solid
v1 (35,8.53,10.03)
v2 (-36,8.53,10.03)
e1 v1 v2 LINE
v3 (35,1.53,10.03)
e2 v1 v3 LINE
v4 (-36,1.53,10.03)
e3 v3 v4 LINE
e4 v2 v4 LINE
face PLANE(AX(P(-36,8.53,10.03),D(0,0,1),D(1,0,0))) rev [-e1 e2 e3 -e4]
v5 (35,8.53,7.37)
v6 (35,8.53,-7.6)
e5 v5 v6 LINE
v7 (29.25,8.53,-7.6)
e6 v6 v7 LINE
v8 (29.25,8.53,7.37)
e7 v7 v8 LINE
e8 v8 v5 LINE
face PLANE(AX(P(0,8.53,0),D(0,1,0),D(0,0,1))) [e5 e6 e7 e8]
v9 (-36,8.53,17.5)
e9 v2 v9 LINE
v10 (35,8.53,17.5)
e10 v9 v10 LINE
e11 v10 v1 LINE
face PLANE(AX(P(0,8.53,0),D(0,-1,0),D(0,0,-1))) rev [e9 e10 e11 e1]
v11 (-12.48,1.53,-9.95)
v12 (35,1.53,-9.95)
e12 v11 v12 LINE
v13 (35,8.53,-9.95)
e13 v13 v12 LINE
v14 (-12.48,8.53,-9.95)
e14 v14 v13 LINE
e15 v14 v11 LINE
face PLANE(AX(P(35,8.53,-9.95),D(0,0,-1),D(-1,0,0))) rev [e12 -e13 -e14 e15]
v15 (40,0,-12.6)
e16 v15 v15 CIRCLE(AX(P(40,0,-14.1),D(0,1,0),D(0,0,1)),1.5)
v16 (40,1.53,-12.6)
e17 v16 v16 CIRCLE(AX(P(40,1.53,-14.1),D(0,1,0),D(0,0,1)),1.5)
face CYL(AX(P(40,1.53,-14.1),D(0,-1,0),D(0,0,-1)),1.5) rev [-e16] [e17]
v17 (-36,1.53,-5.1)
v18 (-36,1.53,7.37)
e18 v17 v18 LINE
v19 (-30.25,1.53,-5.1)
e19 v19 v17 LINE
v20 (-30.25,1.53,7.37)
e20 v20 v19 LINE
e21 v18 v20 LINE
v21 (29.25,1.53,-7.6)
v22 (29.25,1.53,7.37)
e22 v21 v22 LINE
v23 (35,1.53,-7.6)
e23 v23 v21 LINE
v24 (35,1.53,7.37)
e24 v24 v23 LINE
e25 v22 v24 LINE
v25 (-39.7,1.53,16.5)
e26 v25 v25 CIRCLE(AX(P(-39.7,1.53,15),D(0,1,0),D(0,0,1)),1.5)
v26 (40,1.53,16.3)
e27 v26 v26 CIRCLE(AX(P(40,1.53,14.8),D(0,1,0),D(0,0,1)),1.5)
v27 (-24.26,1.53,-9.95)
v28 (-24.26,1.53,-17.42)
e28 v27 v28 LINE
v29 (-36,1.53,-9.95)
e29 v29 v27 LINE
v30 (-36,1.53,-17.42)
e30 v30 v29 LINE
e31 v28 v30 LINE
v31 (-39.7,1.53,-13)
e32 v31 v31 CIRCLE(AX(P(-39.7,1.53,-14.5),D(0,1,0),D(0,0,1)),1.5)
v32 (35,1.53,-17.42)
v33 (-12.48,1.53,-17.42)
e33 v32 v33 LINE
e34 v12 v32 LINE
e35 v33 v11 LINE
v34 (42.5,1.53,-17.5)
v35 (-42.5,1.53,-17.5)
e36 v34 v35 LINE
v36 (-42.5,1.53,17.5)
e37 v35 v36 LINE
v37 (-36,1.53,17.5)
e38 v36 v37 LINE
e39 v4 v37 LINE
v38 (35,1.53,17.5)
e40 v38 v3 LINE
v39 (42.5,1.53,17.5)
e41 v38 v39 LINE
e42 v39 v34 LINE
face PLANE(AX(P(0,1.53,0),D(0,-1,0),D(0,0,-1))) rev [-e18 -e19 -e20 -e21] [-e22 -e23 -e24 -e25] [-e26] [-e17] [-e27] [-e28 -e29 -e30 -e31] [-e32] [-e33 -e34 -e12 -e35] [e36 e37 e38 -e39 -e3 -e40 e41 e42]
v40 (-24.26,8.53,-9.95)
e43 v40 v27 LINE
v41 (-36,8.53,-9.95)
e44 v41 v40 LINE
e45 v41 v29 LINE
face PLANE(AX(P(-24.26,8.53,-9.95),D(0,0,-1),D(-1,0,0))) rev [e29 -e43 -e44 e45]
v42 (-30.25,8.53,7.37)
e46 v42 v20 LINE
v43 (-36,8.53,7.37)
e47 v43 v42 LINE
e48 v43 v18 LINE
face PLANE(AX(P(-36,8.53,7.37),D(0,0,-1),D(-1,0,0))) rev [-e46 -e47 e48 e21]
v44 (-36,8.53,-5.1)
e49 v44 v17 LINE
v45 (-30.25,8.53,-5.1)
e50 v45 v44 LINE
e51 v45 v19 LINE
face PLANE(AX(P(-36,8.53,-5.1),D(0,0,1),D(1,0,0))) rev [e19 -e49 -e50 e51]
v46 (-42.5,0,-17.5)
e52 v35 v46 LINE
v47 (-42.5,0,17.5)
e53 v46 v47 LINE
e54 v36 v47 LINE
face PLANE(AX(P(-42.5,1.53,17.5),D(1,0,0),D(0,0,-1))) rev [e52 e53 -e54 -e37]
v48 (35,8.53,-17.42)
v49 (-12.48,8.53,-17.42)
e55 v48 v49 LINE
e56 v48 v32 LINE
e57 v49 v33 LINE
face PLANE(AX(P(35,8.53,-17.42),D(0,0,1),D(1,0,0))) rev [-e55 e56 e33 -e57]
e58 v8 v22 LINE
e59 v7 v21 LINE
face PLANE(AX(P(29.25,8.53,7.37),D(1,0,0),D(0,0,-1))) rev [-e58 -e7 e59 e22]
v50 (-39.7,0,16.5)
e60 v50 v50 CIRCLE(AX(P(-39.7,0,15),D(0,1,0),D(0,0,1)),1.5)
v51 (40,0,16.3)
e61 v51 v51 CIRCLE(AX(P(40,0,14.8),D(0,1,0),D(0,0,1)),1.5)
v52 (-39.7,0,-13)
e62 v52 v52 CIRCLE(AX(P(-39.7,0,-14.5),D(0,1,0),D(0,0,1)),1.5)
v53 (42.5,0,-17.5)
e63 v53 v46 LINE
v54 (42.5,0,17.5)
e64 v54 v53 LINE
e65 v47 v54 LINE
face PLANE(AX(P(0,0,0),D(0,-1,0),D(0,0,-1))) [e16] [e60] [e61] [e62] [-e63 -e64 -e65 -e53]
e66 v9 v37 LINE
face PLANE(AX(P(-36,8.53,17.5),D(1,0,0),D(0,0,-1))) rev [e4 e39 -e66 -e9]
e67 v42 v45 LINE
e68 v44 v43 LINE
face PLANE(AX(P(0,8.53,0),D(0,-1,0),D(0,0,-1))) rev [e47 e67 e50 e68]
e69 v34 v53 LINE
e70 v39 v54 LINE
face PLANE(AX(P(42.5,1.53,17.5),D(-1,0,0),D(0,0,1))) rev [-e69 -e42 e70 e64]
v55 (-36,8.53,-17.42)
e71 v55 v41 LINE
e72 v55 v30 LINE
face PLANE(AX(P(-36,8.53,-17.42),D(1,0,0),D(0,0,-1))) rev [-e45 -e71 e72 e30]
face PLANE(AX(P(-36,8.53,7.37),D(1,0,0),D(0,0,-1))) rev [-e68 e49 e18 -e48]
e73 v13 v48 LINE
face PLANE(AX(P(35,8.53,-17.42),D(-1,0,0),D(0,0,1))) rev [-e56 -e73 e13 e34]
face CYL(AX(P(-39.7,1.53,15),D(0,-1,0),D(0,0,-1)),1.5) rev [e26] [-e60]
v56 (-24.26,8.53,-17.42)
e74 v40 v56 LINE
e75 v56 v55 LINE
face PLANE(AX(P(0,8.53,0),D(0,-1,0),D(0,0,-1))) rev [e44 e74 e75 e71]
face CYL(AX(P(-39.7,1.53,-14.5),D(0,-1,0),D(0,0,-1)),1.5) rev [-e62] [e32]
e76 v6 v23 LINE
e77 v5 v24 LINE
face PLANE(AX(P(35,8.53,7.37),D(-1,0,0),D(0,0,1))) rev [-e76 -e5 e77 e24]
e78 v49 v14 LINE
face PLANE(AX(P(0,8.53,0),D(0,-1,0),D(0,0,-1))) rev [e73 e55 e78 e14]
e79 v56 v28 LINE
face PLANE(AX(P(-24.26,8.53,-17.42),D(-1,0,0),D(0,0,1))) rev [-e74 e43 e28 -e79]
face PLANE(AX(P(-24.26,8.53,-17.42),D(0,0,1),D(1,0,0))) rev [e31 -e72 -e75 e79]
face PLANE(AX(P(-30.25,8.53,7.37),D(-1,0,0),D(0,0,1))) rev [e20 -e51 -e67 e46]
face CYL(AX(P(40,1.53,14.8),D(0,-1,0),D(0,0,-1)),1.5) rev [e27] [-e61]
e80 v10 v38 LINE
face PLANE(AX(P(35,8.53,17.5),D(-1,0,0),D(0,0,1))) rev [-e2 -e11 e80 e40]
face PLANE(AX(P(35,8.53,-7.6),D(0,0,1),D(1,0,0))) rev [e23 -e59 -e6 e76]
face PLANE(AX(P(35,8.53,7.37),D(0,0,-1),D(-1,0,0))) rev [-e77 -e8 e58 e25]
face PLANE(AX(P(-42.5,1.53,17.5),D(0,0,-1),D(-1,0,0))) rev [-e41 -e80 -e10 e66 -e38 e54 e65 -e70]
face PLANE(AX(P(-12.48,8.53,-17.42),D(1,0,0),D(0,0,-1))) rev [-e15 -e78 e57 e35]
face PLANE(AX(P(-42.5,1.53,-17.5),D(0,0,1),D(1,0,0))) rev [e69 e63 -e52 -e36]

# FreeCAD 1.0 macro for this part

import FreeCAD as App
import Part
import Sketcher
Q = App.Units.Quantity


def add_polygon(sketch, points):
    """Adds a closed chain of lines whose ends are joined by coincident constraints."""
    first, n = sketch.GeometryCount, len(points)
    for a, b in zip(points, points[1:] + points[:1]):
        sketch.addGeometry(Part.LineSegment(App.Vector(*a, 0), App.Vector(*b, 0)), False)
    for i in range(n):
        sketch.addConstraint(Sketcher.Constraint("Coincident", first + i, 2, first + (i + 1) % n, 1))

doc = App.newDocument("Part")
body = doc.addObject("PartDesign::Body", "Body")

# Sketch on XZ plane
sketch1 = body.newObject("Sketcher::SketchObject", "Sketch")
sketch1.AttachmentSupport = (doc.getObject("XZ_Plane"), [""])
sketch1.MapMode = "FlatFace"
add_polygon(sketch1, [(-42.5, -17.5), (-42.5, 17.5), (42.5, 17.5), (42.5, -17.5)])  # lines 0-3
sketch1.addGeometry(Part.Circle(App.Vector(-39.7, 15, 0), App.Vector(0, 0, 1), 1.5), False)  # 4
sketch1.addGeometry(Part.Circle(App.Vector(40, 14.8, 0), App.Vector(0, 0, 1), 1.5), False)  # 5
sketch1.addGeometry(Part.Circle(App.Vector(-39.7, -14.5, 0), App.Vector(0, 0, 1), 1.5), False)  # 6
sketch1.addGeometry(Part.Circle(App.Vector(40, -14.1, 0), App.Vector(0, 0, 1), 1.5), False)  # 7
sketch1.addConstraint(Sketcher.Constraint("Vertical", 0))
sketch1.addConstraint(Sketcher.Constraint("Horizontal", 1))
sketch1.addConstraint(Sketcher.Constraint("Vertical", 2))
sketch1.addConstraint(Sketcher.Constraint("Horizontal", 3))
sketch1.addConstraint(Sketcher.Constraint("Equal", 4, 5))
sketch1.addConstraint(Sketcher.Constraint("Equal", 5, 6))
sketch1.addConstraint(Sketcher.Constraint("Equal", 6, 7))
sketch1.addConstraint(Sketcher.Constraint("Symmetric", 0, 2, 2, 2, -1, 1))
sketch1.addConstraint(Sketcher.Constraint("Vertical", 4, 3, 6, 3))
sketch1.addConstraint(Sketcher.Constraint("Vertical", 5, 3, 7, 3))
sketch1.addConstraint(Sketcher.Constraint("Diameter", 4, Q("3 mm")))
sketch1.addConstraint(Sketcher.Constraint("DistanceX", 1, 1, 1, 2, Q("85 mm")))
sketch1.addConstraint(Sketcher.Constraint("DistanceY", 0, 1, 0, 2, Q("35 mm")))
sketch1.addConstraint(Sketcher.Constraint("DistanceY", -1, 1, 4, 3, Q("15 mm")))
sketch1.addConstraint(Sketcher.Constraint("DistanceX", -1, 1, 5, 3, Q("40 mm")))
sketch1.addConstraint(Sketcher.Constraint("DistanceY", 6, 3, 0, 2, Q("32 mm")))
sketch1.addConstraint(Sketcher.Constraint("DistanceX", 4, 3, -1, 1, Q("39.7 mm")))
sketch1.addConstraint(Sketcher.Constraint("DistanceY", -1, 1, 5, 3, Q("14.8 mm")))
sketch1.addConstraint(Sketcher.Constraint("DistanceY", 7, 3, -1, 1, Q("14.1 mm")))
pad1 = body.newObject("PartDesign::Pad", "Pad")
pad1.Profile = sketch1
pad1.Length = 1.53
pad1.Reversed = True

# Sketch on XZ plane
sketch2 = body.newObject("Sketcher::SketchObject", "Sketch001")
sketch2.AttachmentSupport = (doc.getObject("XZ_Plane"), [""])
sketch2.MapMode = "FlatFace"
sketch2.AttachmentOffset = App.Placement(App.Vector(0, 0, -1.53), App.Rotation())
add_polygon(sketch2, [(-36, 10), (-36, 18), (35, 18), (35, 10)])  # lines 0-3
add_polygon(sketch2, [(29, -8), (29, 7), (35, 7), (35, -8)])  # lines 4-7
add_polygon(sketch2, [(-36, -17), (-36, -10), (-24, -10), (-24, -17)])  # lines 8-11
add_polygon(sketch2, [(-12, -17), (-12, -10), (35, -10), (35, -17)])  # lines 12-15
add_polygon(sketch2, [(-36, -5), (-36, 7), (-30, 7), (-30, -5)])  # lines 16-19
sketch2.addConstraint(Sketcher.Constraint("Vertical", 0))
sketch2.addConstraint(Sketcher.Constraint("Horizontal", 1))
sketch2.addConstraint(Sketcher.Constraint("Vertical", 2))
sketch2.addConstraint(Sketcher.Constraint("Horizontal", 3))
sketch2.addConstraint(Sketcher.Constraint("Vertical", 4))
sketch2.addConstraint(Sketcher.Constraint("Horizontal", 5))
sketch2.addConstraint(Sketcher.Constraint("Vertical", 6))
sketch2.addConstraint(Sketcher.Constraint("Horizontal", 7))
sketch2.addConstraint(Sketcher.Constraint("Vertical", 8))
sketch2.addConstraint(Sketcher.Constraint("Horizontal", 9))
sketch2.addConstraint(Sketcher.Constraint("Vertical", 10))
sketch2.addConstraint(Sketcher.Constraint("Horizontal", 11))
sketch2.addConstraint(Sketcher.Constraint("Vertical", 12))
sketch2.addConstraint(Sketcher.Constraint("Horizontal", 13))
sketch2.addConstraint(Sketcher.Constraint("Vertical", 14))
sketch2.addConstraint(Sketcher.Constraint("Horizontal", 15))
sketch2.addConstraint(Sketcher.Constraint("Vertical", 16))
sketch2.addConstraint(Sketcher.Constraint("Horizontal", 17))
sketch2.addConstraint(Sketcher.Constraint("Vertical", 18))
sketch2.addConstraint(Sketcher.Constraint("Horizontal", 19))
sketch2.addConstraint(Sketcher.Constraint("Horizontal", 9, 2, 12, 2))
sketch2.addConstraint(Sketcher.Constraint("Horizontal", 11, 2, 14, 2))
sketch2.addConstraint(Sketcher.Constraint("Horizontal", 5, 2, 16, 2))
sketch2.addConstraint(Sketcher.Constraint("Vertical", 2, 2, 5, 2))
sketch2.addConstraint(Sketcher.Constraint("Vertical", 3, 2, 8, 2))
sketch2.addConstraint(Sketcher.Constraint("Vertical", 6, 2, 13, 2))
sketch2.addConstraint(Sketcher.Constraint("Vertical", 11, 2, 16, 2))
sketch2.addConstraint(Sketcher.Constraint("Equal", 7, 17))
sketch2.addConstraint(Sketcher.Constraint("Equal", 2, 8))
sketch2.addConstraint(Sketcher.Constraint("DistanceX", 1, 1, 1, 2, Q("71 mm")))
sketch2.addConstraint(Sketcher.Constraint("DistanceX", 0, 2, -1, 1, Q("36 mm")))
sketch2.addConstraint(Sketcher.Constraint("DistanceX", 5, 1, 5, 2, Q("5.75 mm")))
sketch2.addConstraint(Sketcher.Constraint("DistanceX", 9, 1, 9, 2, Q("11.74 mm")))
sketch2.addConstraint(Sketcher.Constraint("DistanceX", 13, 1, 13, 2, Q("47.48 mm")))
sketch2.addConstraint(Sketcher.Constraint("DistanceY", 0, 1, 0, 2, Q("7.47 mm")))
sketch2.addConstraint(Sketcher.Constraint("DistanceY", 4, 1, 4, 2, Q("14.97 mm")))
sketch2.addConstraint(Sketcher.Constraint("DistanceY", 16, 1, 16, 2, Q("12.47 mm")))
sketch2.addConstraint(Sketcher.Constraint("DistanceY", -1, 1, 0, 2, Q("17.5 mm")))
sketch2.addConstraint(Sketcher.Constraint("DistanceY", 6, 2, -1, 1, Q("7.6 mm")))
sketch2.addConstraint(Sketcher.Constraint("DistanceY", 8, 2, -1, 1, Q("9.95 mm")))
pad2 = body.newObject("PartDesign::Pad", "Pad001")
pad2.Profile = sketch2
pad2.Length = 7
pad2.Reversed = True

doc.recompute()
